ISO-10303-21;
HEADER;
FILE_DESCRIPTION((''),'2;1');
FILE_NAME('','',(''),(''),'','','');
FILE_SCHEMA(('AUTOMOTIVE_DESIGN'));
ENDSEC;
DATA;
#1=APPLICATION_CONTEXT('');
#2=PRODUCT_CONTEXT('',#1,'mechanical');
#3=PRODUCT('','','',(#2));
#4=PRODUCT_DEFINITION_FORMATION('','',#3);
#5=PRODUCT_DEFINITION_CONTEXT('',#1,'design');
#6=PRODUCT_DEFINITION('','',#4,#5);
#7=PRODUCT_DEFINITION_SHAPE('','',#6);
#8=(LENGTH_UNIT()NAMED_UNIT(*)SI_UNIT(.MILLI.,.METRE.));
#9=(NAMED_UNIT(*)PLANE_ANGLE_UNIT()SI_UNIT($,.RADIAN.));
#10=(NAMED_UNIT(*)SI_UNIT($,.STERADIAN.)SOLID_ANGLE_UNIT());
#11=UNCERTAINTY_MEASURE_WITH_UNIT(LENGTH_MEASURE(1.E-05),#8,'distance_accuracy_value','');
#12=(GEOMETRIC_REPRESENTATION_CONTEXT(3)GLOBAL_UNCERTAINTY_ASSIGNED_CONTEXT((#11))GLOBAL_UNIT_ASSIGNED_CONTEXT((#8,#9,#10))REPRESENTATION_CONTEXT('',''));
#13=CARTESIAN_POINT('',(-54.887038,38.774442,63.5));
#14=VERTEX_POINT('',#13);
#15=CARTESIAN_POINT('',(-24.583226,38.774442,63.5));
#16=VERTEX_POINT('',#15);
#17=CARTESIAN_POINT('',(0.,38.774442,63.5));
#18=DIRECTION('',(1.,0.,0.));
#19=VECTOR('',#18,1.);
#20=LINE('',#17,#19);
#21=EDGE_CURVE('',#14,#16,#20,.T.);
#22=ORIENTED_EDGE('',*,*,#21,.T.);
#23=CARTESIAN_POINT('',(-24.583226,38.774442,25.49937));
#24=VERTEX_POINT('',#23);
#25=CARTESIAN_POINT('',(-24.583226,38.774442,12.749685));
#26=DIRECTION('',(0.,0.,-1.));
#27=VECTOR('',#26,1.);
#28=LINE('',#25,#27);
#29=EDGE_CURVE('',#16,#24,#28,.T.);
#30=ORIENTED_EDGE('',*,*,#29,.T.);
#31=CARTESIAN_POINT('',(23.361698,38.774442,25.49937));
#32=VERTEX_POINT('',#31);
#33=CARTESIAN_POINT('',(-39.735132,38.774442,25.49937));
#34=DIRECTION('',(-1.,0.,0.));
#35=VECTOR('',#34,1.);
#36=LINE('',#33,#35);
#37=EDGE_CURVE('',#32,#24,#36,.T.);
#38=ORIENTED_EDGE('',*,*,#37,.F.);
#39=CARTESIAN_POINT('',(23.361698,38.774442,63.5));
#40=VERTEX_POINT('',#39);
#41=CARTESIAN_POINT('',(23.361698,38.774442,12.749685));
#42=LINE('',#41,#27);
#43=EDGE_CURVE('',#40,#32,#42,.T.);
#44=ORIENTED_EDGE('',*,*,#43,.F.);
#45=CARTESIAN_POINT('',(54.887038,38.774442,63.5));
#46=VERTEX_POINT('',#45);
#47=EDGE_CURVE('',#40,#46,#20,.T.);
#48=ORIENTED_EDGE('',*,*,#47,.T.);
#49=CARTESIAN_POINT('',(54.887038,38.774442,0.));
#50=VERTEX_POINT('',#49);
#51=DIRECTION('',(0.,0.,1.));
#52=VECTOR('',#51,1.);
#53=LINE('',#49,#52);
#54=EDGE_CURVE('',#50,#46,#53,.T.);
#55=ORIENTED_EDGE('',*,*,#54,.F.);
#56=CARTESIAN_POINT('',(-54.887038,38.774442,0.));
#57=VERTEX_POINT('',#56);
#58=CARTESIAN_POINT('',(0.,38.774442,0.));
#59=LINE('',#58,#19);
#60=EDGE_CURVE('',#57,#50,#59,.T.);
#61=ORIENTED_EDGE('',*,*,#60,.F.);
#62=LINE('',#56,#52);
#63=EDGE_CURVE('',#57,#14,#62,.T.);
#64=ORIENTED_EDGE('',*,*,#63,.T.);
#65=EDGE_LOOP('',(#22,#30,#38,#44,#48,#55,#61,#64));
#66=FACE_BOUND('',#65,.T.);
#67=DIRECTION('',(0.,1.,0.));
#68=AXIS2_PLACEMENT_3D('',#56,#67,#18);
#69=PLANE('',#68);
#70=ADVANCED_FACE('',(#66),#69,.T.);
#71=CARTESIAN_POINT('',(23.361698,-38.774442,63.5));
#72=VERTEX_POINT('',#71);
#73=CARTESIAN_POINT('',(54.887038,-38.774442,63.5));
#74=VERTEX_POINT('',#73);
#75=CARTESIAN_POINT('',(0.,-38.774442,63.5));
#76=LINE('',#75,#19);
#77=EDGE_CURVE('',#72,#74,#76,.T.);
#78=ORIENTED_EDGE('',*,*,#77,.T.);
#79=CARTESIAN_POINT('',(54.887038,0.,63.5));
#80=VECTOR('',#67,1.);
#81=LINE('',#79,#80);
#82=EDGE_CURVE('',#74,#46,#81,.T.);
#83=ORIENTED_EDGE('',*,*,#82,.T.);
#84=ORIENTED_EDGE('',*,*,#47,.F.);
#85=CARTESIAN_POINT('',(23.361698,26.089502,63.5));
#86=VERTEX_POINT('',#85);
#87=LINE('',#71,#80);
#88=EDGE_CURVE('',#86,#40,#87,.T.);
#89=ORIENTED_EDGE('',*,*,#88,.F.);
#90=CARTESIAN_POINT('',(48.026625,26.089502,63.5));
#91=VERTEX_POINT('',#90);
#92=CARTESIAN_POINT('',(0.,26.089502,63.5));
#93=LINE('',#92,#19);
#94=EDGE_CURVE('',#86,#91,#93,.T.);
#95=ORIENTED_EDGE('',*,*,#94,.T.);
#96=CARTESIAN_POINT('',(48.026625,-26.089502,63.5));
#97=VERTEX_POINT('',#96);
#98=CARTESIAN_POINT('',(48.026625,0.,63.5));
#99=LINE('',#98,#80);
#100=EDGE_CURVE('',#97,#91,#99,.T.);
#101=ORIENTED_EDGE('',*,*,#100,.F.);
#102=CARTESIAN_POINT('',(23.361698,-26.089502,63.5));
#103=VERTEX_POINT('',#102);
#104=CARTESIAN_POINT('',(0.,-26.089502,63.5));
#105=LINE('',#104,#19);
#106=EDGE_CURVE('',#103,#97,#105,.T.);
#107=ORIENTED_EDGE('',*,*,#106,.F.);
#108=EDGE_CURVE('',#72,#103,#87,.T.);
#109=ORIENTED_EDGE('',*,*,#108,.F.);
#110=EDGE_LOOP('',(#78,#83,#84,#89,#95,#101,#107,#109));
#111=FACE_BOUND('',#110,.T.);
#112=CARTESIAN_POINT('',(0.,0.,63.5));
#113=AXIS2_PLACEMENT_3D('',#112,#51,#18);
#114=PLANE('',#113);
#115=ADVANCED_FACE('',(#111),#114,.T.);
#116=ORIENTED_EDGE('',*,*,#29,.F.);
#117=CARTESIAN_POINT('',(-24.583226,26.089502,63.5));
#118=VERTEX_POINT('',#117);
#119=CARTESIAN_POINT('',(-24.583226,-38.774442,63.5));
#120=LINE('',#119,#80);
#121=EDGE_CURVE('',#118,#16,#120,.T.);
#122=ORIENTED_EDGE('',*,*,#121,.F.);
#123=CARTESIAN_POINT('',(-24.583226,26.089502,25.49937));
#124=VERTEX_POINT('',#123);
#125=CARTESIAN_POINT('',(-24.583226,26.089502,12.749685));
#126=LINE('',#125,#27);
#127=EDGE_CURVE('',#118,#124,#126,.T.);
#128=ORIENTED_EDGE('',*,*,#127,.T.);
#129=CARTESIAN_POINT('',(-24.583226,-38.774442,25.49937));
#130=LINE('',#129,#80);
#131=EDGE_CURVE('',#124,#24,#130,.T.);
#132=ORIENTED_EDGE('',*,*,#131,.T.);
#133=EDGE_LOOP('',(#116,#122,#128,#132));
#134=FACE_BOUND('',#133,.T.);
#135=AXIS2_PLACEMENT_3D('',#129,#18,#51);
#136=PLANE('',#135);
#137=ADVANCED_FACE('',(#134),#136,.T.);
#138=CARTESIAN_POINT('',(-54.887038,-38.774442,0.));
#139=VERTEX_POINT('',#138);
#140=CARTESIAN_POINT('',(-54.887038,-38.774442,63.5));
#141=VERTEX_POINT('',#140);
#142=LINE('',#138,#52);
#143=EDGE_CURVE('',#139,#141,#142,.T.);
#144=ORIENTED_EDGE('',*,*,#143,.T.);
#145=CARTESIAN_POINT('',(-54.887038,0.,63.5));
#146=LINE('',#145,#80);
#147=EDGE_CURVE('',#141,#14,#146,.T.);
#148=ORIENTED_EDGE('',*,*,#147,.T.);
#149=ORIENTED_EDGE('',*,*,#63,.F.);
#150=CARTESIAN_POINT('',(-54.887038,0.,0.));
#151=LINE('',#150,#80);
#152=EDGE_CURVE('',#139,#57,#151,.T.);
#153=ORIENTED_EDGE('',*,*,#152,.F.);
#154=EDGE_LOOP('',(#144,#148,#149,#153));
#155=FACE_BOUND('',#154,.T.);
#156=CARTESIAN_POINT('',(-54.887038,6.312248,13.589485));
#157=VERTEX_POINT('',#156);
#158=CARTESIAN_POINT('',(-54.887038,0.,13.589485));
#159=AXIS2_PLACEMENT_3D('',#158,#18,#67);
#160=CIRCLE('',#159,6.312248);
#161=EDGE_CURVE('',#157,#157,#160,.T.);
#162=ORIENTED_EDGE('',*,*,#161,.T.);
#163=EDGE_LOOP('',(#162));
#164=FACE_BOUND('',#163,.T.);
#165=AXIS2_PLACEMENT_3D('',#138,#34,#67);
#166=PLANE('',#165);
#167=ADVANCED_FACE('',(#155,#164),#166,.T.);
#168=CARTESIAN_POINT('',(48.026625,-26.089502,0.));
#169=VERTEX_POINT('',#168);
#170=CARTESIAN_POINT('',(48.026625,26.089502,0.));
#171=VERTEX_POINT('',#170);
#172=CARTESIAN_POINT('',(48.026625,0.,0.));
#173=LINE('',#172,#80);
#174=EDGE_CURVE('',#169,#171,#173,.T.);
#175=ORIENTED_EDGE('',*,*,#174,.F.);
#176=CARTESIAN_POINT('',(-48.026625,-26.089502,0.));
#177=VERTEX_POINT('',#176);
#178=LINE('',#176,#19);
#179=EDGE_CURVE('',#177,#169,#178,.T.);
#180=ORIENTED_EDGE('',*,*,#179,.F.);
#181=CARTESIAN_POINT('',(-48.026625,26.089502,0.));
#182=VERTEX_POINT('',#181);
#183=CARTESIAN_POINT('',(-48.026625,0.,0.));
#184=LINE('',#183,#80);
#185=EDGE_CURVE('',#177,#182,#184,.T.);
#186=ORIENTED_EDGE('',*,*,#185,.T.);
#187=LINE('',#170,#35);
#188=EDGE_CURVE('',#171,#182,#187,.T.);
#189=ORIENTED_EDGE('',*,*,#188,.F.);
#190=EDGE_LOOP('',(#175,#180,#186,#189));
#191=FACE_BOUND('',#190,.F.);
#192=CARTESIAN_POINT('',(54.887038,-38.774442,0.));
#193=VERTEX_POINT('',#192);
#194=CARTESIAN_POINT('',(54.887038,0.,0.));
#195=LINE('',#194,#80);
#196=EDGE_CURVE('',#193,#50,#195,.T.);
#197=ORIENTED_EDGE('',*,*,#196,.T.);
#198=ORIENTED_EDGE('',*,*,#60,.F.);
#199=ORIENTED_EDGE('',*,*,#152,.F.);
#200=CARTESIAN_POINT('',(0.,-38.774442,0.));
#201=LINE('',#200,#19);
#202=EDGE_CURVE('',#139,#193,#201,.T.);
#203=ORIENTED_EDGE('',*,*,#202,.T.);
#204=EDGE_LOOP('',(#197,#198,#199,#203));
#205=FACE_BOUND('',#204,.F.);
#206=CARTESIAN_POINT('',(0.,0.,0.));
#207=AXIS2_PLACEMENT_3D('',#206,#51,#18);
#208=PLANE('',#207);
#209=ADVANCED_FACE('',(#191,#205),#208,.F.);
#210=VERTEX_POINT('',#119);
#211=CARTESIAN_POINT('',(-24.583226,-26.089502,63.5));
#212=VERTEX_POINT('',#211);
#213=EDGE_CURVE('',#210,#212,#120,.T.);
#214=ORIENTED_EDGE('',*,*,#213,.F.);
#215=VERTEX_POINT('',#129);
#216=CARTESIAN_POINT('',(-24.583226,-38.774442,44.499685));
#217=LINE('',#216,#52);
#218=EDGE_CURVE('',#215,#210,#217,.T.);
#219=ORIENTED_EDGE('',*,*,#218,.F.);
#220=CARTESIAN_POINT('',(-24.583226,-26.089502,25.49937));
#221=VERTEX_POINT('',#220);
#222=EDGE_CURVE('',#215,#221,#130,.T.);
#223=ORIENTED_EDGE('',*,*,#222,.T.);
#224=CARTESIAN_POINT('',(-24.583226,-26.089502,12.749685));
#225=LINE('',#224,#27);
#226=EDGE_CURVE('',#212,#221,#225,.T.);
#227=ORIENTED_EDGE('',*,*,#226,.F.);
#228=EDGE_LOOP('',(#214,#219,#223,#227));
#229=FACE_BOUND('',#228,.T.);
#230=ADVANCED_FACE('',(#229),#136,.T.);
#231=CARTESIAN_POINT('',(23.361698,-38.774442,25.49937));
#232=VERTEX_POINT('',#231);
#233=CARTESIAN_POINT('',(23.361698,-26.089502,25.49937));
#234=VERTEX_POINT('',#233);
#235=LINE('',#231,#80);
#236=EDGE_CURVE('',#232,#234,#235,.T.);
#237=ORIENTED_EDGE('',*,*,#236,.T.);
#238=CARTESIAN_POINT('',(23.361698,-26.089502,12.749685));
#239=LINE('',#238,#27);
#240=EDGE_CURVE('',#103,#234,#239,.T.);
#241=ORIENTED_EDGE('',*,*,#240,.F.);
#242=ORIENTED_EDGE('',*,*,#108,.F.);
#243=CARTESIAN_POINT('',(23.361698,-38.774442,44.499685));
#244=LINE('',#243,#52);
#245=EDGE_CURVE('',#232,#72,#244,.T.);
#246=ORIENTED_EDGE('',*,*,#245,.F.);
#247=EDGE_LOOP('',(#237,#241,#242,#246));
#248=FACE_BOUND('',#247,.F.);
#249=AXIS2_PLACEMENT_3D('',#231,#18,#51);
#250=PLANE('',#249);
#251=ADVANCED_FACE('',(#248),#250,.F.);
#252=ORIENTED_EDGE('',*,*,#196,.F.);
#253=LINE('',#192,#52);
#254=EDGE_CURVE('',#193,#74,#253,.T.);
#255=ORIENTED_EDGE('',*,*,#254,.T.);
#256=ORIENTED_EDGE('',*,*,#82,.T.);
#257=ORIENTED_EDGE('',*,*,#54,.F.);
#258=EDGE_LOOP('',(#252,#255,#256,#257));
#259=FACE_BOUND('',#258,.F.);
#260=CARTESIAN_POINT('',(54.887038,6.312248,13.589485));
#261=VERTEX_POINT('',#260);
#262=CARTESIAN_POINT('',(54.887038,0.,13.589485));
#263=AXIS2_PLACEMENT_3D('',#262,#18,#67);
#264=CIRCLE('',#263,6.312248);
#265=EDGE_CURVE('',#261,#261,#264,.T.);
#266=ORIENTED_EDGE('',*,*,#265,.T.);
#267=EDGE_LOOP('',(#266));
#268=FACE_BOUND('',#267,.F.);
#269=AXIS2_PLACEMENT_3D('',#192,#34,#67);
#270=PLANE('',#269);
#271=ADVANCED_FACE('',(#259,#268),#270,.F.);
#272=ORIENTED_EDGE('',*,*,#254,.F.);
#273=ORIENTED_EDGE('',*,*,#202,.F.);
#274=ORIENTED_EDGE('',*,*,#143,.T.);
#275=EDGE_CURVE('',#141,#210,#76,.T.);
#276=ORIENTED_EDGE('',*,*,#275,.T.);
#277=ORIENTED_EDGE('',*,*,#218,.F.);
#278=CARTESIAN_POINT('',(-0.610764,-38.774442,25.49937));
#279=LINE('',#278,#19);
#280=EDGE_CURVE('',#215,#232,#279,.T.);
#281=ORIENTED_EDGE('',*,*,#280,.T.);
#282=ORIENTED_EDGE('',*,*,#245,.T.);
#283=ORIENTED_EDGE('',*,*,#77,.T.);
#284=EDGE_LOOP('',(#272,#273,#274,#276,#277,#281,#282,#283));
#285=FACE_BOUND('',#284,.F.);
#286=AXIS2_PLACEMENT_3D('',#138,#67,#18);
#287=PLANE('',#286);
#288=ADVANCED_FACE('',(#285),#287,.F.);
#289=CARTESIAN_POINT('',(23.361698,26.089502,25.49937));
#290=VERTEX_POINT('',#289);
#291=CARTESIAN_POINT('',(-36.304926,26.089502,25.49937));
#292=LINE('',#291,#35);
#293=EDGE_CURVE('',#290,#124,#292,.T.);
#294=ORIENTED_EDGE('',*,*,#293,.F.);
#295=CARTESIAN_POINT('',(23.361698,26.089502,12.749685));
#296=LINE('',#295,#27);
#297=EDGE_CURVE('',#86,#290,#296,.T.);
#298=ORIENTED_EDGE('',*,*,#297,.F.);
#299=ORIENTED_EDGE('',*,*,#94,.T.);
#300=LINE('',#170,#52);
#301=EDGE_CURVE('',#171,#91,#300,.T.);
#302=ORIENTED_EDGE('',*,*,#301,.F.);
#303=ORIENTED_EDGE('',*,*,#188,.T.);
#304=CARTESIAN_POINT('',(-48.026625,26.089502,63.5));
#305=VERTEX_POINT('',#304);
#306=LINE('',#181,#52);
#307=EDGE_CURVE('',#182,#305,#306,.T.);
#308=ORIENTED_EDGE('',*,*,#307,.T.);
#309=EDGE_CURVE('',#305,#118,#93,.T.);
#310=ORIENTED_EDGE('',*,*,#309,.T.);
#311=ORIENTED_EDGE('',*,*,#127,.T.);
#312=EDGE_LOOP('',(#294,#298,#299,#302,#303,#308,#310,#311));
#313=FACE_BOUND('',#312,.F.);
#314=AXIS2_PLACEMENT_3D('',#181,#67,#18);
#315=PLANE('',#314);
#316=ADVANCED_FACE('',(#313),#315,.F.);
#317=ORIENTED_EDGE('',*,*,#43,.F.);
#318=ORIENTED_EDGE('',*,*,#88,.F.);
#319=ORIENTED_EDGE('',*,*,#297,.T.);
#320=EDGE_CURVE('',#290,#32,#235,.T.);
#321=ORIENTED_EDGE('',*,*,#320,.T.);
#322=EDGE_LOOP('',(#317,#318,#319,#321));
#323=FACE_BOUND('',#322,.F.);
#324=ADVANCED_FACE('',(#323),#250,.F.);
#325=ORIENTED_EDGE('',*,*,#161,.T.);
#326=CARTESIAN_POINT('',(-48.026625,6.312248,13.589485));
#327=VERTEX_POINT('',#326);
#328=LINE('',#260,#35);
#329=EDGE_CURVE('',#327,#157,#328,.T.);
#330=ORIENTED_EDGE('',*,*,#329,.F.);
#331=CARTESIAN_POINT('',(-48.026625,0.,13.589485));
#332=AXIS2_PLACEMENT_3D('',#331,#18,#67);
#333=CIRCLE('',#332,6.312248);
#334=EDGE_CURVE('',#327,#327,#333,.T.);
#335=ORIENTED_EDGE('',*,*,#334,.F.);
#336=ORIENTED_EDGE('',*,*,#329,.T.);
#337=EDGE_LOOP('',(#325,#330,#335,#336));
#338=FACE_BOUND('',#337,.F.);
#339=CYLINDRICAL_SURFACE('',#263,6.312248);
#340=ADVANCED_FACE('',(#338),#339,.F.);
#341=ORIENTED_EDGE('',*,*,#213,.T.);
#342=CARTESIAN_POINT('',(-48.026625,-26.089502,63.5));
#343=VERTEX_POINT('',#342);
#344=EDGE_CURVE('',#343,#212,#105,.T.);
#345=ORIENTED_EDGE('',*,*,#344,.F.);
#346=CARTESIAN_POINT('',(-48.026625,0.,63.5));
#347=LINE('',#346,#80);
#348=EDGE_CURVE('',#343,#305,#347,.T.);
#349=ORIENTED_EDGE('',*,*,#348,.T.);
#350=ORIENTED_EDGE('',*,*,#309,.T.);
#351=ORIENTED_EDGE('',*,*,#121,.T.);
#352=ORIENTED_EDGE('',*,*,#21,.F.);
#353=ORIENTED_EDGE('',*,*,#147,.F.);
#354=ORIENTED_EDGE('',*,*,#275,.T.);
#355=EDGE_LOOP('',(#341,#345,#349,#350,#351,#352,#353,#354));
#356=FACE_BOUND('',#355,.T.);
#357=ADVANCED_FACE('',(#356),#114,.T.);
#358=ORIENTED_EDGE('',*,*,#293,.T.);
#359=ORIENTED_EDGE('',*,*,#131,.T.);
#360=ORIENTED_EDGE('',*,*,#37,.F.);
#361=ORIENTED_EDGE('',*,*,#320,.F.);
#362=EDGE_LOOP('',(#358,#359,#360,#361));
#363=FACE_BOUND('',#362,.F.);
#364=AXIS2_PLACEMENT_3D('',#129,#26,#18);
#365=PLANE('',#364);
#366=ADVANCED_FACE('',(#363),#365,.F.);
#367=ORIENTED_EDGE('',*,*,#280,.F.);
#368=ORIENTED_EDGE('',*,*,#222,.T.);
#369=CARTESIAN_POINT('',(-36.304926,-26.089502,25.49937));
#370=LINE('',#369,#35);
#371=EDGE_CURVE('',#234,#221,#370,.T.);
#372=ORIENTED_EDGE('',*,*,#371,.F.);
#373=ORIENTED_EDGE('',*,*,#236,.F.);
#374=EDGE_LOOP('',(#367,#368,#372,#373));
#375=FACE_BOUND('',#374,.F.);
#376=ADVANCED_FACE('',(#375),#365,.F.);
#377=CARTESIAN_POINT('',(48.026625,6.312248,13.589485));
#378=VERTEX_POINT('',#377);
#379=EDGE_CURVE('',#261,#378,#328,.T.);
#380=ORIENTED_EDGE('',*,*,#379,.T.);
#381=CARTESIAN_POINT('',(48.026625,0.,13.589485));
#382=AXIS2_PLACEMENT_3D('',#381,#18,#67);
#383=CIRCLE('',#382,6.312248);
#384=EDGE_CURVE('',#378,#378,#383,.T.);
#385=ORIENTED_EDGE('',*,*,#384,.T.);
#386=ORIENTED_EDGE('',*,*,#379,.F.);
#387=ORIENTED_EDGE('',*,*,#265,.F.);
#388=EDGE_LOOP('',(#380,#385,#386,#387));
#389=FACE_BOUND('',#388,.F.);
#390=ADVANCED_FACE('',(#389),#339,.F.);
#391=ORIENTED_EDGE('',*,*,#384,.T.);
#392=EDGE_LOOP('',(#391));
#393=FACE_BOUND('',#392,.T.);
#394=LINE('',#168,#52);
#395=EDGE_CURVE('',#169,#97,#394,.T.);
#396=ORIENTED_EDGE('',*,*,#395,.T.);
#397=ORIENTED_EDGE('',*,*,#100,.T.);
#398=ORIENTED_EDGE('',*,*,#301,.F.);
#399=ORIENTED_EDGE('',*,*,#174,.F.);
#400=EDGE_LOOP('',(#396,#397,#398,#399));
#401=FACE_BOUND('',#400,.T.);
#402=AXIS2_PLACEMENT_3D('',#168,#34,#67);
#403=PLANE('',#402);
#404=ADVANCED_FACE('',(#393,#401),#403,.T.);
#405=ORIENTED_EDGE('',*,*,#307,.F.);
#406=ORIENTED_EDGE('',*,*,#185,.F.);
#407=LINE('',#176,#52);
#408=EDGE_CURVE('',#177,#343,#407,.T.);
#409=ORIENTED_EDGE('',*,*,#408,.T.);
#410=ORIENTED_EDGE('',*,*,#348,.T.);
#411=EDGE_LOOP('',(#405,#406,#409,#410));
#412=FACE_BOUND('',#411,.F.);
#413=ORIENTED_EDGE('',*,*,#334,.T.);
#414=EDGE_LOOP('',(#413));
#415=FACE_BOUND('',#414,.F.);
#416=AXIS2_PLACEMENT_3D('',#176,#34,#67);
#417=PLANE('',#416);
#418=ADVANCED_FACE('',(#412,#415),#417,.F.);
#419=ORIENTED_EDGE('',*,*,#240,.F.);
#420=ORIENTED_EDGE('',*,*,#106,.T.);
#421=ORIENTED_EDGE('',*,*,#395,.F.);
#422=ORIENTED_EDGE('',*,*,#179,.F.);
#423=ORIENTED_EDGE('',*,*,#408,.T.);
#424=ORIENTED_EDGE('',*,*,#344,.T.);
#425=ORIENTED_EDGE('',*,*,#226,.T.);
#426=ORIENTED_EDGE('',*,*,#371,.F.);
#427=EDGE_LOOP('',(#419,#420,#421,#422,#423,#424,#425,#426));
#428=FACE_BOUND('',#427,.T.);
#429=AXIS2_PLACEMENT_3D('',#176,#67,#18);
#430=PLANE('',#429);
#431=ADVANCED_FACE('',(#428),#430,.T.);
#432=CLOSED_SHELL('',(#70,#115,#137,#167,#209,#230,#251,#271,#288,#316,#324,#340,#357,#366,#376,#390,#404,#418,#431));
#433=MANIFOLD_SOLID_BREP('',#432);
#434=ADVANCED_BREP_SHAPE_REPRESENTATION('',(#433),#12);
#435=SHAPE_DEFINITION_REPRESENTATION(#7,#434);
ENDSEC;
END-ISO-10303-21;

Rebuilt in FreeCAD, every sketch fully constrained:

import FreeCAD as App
import Part
import Sketcher

V = App.Vector
Q = App.Units.Quantity


def add_polygon(sketch, points):
    """Adds a closed chain of lines whose ends are joined by coincident constraints."""
    first, n = sketch.GeometryCount, len(points)
    for a, b in zip(points, points[1:] + points[:1]):
        sketch.addGeometry(Part.LineSegment(App.Vector(*a, 0), App.Vector(*b, 0)), False)
    for i in range(n):
        sketch.addConstraint(Sketcher.Constraint("Coincident", first + i, 2, first + (i + 1) % n, 1))

doc = App.newDocument("Part")
params = doc.addObject("Spreadsheet::Sheet", "Params")
for row, (alias, value) in enumerate([
    ("pad1_length", "2.5 in"),
    ("pocket1_length", "2.5 in"),
    ("pocket2_length", "2.5 in"),
    ("pocket3_length", "4 in"),
    ("pocket4_length", "10 in"),
], start=1):
    params.set(f"A{row}", alias)
    params.set(f"B{row}", "=" + value)
    params.setAlias(f"B{row}", alias)

body = doc.addObject("PartDesign::Body", "Body")

# Sketch on XY plane
sketch1 = doc.addObject("Sketcher::SketchObject", "Sketch")
body.addObject(sketch1)
sketch1.AttachmentSupport = (doc.XY_Plane, [""])
sketch1.MapMode = "FlatFace"
add_polygon(sketch1, [(-55, 39), (-55, -39), (55, -39), (55, 39)])  # lines 0-3
sketch1.addConstraint([
    Sketcher.Constraint("Vertical", 0),
    Sketcher.Constraint("Horizontal", 1),
    Sketcher.Constraint("Vertical", 2),
    Sketcher.Constraint("Horizontal", 3),
    Sketcher.Constraint("Symmetric", 0, 2, 2, 2, -1, 1),
    Sketcher.Constraint("DistanceX", 1, 1, 1, 2, Q("109.774076 mm")),
    Sketcher.Constraint("DistanceY", 0, 2, 0, 1, Q("77.548884 mm")),
])
pad1 = doc.addObject("PartDesign::Pad", "Pad")
body.addObject(pad1)
pad1.Profile = sketch1
pad1.setExpression("Length", "Params.pad1_length")

# Sketch on XY plane
sketch2 = doc.addObject("Sketcher::SketchObject", "Sketch001")
body.addObject(sketch2)
sketch2.AttachmentSupport = (doc.XY_Plane, [""])
sketch2.MapMode = "FlatFace"
add_polygon(sketch2, [(-48, 26), (-48, -26), (48, -26), (48, 26)])  # lines 0-3
sketch2.addConstraint([
    Sketcher.Constraint("Vertical", 0),
    Sketcher.Constraint("Horizontal", 1),
    Sketcher.Constraint("Vertical", 2),
    Sketcher.Constraint("Horizontal", 3),
    Sketcher.Constraint("Symmetric", 0, 2, 2, 2, -1, 1),
    Sketcher.Constraint("DistanceX", 1, 1, 1, 2, Q("96.05325 mm")),
    Sketcher.Constraint("DistanceY", 0, 2, -1, 1, Q("26.089502 mm")),
])
pocket1 = doc.addObject("PartDesign::Pocket", "Pocket")
body.addObject(pocket1)
pocket1.Profile = sketch2
pocket1.setExpression("Length", "Params.pocket1_length")
pocket1.Reversed = True

# Sketch on XY plane
sketch3 = doc.addObject("Sketcher::SketchObject", "Sketch002")
body.addObject(sketch3)
sketch3.AttachmentSupport = (doc.XY_Plane, [""])
sketch3.MapMode = "FlatFace"
add_polygon(sketch3, [(-41, 32), (-41, -32), (41, -32), (41, 32)])  # lines 0-3
sketch3.addConstraint([
    Sketcher.Constraint("Vertical", 0),
    Sketcher.Constraint("Horizontal", 1),
    Sketcher.Constraint("Vertical", 2),
    Sketcher.Constraint("Horizontal", 3),
    Sketcher.Constraint("Symmetric", 0, 2, 2, 2, -1, 1),
    Sketcher.Constraint("DistanceX", 1, 1, 1, 2, Q("81.802986 mm")),
    Sketcher.Constraint("DistanceY", 0, 2, 0, 1, Q("63.615836 mm")),
])
pocket2 = doc.addObject("PartDesign::Pocket", "Pocket001")
body.addObject(pocket2)
pocket2.Profile = sketch3
pocket2.setExpression("Length", "Params.pocket2_length")

# Sketch on XZ plane
sketch4 = doc.addObject("Sketcher::SketchObject", "Sketch003")
body.addObject(sketch4)
sketch4.AttachmentSupport = (doc.XZ_Plane, [""])
sketch4.MapMode = "FlatFace"
sketch4.AttachmentOffset = App.Placement(V(0, 0, 38.774442), App.Rotation())
add_polygon(sketch4, [(-25, 64), (-25, 25), (23, 25), (23, 64)])  # lines 0-3
sketch4.addConstraint([
    Sketcher.Constraint("Vertical", 0),
    Sketcher.Constraint("Horizontal", 1),
    Sketcher.Constraint("Vertical", 2),
    Sketcher.Constraint("Horizontal", 3),
    Sketcher.Constraint("DistanceY", -1, 1, 2, 2, Q("2.5 in")),
    Sketcher.Constraint("DistanceY", 0, 2, 0, 1, Q("38.00063 mm")),
    Sketcher.Constraint("DistanceX", -1, 1, 1, 2, Q("23.361698 mm")),
    Sketcher.Constraint("DistanceX", 1, 1, 1, 2, Q("47.944924 mm")),
])
pocket3 = doc.addObject("PartDesign::Pocket", "Pocket002")
body.addObject(pocket3)
pocket3.Profile = sketch4
pocket3.setExpression("Length", "Params.pocket3_length")

# Sketch on YZ plane
sketch5 = doc.addObject("Sketcher::SketchObject", "Sketch004")
body.addObject(sketch5)
sketch5.AttachmentSupport = (doc.YZ_Plane, [""])
sketch5.MapMode = "FlatFace"
sketch5.AttachmentOffset = App.Placement(V(0, 0, 54.887038), App.Rotation())
sketch5.addGeometry(Part.Circle(V(0, 14, 0), V(0, 0, 1), 6), False)
sketch5.addConstraint([
    Sketcher.Constraint("PointOnObject", 0, 3, -2),
    Sketcher.Constraint("Diameter", 0, Q("12.624496 mm")),
    Sketcher.Constraint("DistanceY", -1, 1, 0, 3, Q("13.589485 mm")),
])
pocket4 = doc.addObject("PartDesign::Pocket", "Pocket003")
body.addObject(pocket4)
pocket4.Profile = sketch5
pocket4.setExpression("Length", "Params.pocket4_length")

doc.recompute()
